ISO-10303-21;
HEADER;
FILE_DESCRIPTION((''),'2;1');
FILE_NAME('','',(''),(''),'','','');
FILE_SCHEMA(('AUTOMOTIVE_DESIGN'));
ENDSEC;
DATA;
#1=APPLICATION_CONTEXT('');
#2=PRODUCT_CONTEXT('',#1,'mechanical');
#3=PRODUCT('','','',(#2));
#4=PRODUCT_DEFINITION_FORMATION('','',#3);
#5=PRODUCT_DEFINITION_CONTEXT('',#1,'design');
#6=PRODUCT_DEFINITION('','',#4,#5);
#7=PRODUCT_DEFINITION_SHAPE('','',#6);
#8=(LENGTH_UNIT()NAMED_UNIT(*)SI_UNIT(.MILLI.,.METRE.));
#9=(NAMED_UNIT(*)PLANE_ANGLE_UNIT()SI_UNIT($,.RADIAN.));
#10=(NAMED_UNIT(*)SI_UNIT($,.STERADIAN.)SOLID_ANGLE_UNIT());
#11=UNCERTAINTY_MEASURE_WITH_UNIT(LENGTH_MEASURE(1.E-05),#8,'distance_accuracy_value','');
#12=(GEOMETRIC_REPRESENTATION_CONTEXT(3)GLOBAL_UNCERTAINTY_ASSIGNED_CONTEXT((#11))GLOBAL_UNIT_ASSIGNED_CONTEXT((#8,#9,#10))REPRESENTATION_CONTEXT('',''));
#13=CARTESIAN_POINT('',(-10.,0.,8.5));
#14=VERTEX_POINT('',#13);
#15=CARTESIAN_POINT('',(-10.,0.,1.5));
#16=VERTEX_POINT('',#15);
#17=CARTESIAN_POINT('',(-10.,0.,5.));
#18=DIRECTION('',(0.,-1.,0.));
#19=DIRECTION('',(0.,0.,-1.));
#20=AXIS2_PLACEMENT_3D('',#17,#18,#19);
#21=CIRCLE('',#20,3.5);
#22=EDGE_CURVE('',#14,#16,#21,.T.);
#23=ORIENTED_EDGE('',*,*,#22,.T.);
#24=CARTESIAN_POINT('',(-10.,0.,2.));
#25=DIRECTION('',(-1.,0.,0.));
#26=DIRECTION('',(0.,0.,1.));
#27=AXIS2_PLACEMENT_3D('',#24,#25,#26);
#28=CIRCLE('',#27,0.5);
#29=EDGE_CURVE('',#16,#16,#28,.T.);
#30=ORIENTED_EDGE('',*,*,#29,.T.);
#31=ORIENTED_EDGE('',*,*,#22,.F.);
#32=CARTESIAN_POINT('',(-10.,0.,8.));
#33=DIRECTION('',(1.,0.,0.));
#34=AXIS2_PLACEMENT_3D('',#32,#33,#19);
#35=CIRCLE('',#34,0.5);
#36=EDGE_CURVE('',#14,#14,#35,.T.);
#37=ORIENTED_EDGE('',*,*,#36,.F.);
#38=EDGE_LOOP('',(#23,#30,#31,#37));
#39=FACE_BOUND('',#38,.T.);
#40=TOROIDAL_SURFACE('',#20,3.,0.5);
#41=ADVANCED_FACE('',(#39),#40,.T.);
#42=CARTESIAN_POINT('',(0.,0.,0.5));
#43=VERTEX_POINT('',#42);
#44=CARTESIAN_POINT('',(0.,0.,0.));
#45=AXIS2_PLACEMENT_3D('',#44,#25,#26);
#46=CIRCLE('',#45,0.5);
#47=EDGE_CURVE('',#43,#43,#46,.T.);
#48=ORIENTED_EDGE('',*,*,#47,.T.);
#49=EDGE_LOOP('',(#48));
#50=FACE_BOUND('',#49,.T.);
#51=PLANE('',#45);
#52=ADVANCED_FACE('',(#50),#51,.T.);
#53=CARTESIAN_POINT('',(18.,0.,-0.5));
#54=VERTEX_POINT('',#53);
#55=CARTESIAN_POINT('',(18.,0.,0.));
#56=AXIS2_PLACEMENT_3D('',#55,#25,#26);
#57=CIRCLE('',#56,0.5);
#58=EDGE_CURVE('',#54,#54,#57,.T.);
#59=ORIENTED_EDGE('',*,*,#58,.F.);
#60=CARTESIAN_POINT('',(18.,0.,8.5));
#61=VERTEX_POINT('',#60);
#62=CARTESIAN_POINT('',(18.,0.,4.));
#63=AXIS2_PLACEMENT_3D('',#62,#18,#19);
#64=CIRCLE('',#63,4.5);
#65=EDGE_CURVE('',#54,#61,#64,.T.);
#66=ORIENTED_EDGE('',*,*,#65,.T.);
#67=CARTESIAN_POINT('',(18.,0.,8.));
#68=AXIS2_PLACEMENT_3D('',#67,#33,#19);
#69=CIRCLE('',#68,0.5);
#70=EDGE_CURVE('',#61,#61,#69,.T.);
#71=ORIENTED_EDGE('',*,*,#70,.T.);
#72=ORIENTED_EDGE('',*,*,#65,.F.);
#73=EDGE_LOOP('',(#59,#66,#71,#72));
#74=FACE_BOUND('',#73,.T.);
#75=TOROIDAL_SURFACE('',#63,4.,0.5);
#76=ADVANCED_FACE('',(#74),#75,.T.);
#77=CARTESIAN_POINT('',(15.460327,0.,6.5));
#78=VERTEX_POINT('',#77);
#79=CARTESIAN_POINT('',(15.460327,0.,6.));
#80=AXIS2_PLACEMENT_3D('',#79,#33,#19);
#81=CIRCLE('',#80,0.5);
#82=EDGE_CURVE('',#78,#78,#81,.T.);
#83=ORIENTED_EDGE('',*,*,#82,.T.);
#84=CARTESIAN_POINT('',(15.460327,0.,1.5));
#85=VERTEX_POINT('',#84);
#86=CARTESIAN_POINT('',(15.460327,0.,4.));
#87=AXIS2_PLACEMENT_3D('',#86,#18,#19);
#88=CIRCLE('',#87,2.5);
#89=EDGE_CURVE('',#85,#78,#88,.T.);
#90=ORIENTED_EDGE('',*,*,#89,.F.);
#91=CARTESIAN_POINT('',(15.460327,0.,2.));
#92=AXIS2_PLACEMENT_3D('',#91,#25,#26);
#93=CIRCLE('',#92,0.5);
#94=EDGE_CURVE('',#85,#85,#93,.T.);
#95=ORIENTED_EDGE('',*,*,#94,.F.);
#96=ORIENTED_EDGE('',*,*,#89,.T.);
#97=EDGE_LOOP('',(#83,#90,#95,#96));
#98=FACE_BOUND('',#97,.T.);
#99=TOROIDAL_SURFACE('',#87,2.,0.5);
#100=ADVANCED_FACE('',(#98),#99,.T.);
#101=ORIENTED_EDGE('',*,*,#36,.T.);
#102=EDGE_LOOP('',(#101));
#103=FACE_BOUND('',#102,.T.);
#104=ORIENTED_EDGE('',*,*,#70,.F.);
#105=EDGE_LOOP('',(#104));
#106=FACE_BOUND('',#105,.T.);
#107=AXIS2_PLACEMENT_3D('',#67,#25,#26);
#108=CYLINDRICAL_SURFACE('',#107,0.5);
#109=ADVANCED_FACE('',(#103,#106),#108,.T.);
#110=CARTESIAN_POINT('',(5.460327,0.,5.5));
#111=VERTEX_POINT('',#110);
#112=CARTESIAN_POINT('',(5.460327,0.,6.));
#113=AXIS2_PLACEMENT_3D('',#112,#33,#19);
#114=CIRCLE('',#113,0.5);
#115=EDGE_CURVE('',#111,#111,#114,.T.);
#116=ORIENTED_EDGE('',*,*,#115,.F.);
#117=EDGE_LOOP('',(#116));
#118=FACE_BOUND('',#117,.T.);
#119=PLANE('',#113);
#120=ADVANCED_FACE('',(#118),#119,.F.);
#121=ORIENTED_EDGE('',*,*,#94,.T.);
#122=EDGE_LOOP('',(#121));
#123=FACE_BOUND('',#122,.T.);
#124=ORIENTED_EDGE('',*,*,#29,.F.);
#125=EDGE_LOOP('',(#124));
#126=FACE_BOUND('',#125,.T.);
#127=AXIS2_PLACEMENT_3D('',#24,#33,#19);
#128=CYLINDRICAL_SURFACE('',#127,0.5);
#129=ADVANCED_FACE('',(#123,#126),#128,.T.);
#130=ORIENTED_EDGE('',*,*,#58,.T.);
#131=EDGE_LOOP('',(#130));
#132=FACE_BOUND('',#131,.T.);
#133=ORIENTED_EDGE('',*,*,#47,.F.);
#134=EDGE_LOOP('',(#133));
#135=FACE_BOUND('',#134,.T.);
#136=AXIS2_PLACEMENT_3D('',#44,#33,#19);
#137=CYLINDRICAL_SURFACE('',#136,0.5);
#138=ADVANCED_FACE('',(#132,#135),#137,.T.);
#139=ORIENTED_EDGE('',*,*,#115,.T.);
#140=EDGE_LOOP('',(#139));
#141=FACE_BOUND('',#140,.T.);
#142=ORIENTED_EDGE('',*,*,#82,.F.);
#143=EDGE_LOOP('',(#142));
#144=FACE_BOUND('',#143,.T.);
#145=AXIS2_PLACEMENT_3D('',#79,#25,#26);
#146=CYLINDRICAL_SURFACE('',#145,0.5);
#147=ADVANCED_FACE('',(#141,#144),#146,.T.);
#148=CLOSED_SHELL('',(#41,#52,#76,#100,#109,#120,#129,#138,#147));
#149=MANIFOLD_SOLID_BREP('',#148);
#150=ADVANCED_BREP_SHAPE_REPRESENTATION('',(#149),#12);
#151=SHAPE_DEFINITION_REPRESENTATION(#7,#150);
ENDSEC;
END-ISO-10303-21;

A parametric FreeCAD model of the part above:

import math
import FreeCAD as App
import Part
import Sketcher
from FreeCAD import Vector

doc = App.newDocument("Part")
body = doc.addObject("PartDesign::Body", "Body")

# Sketch on YZ plane
sketch1 = body.newObject("Sketcher::SketchObject", "Sketch")
sketch1.AttachmentSupport = (doc.getObject("YZ_Plane"), [""])
sketch1.MapMode = "FlatFace"
sketch1.addGeometry(Part.Circle(Vector(0, 0, 0), Vector(0, 0, 1), 0.5), False)
sketch1.addConstraint([
    Sketcher.Constraint("Coincident", 0, 3, -1, 1),
    Sketcher.Constraint("Diameter", 0, 1.0),
])

# Sketch on XZ plane
sketch2 = body.newObject("Sketcher::SketchObject", "Sketch001")
sketch2.AttachmentSupport = (doc.getObject("XZ_Plane"), [""])
sketch2.MapMode = "FlatFace"
sketch2.addGeometry([
    Part.LineSegment(Vector(0, 0, 0), Vector(18, 0, 0)),  # 0
    Part.ArcOfCircle(Part.Circle(Vector(18, 4, 0), Vector(0, 0, 1), 4), math.radians(-90), math.radians(90)),  # 1
    Part.LineSegment(Vector(18, 8, 0), Vector(-10, 8, 0)),  # 2
    Part.ArcOfCircle(Part.Circle(Vector(-10, 5, 0), Vector(0, 0, 1), 3), math.radians(90), math.radians(270)),  # 3
    Part.LineSegment(Vector(-10, 2, 0), Vector(15.5, 2, 0)),  # 4
    Part.ArcOfCircle(Part.Circle(Vector(15.5, 4, 0), Vector(0, 0, 1), 2), math.radians(-90), math.radians(90)),  # 5
    Part.LineSegment(Vector(15.5, 6, 0), Vector(5.5, 6, 0)),  # 6
], False)
sketch2.addConstraint([
    Sketcher.Constraint("Tangent", 0, 2, 1, 1),
    Sketcher.Constraint("Tangent", 1, 2, 2, 1),
    Sketcher.Constraint("Tangent", 2, 2, 3, 1),
    Sketcher.Constraint("Tangent", 3, 2, 4, 1),
    Sketcher.Constraint("Tangent", 4, 2, 5, 1),
    Sketcher.Constraint("Tangent", 5, 2, 6, 1),
    Sketcher.Constraint("Horizontal", 0),
    Sketcher.Constraint("Horizontal", 2),
    Sketcher.Constraint("Horizontal", 4),
    Sketcher.Constraint("Horizontal", 6),
    Sketcher.Constraint("Coincident", 0, 1, -1, 1),
    Sketcher.Constraint("Horizontal", 1, 3, 5, 3),
    Sketcher.Constraint("Radius", 1, 4.0),
    Sketcher.Constraint("Radius", 3, 3.0),
    Sketcher.Constraint("DistanceX", 0, 1, 0, 2, 18.0),
    Sketcher.Constraint("DistanceX", 2, 2, 2, 1, 28.0),
    Sketcher.Constraint("DistanceX", 6, 2, 6, 1, 10.0),
    Sketcher.Constraint("DistanceX", 4, 1, 4, 2, 25.460327),
])
doc.recompute()

additivepipe = body.newObject("PartDesign::AdditivePipe", "AdditivePipe")
additivepipe.Profile = sketch1
additivepipe.Spine = (sketch2, ["Edge1", "Edge2", "Edge3", "Edge4", "Edge5", "Edge6", "Edge7"])

doc.recompute()
